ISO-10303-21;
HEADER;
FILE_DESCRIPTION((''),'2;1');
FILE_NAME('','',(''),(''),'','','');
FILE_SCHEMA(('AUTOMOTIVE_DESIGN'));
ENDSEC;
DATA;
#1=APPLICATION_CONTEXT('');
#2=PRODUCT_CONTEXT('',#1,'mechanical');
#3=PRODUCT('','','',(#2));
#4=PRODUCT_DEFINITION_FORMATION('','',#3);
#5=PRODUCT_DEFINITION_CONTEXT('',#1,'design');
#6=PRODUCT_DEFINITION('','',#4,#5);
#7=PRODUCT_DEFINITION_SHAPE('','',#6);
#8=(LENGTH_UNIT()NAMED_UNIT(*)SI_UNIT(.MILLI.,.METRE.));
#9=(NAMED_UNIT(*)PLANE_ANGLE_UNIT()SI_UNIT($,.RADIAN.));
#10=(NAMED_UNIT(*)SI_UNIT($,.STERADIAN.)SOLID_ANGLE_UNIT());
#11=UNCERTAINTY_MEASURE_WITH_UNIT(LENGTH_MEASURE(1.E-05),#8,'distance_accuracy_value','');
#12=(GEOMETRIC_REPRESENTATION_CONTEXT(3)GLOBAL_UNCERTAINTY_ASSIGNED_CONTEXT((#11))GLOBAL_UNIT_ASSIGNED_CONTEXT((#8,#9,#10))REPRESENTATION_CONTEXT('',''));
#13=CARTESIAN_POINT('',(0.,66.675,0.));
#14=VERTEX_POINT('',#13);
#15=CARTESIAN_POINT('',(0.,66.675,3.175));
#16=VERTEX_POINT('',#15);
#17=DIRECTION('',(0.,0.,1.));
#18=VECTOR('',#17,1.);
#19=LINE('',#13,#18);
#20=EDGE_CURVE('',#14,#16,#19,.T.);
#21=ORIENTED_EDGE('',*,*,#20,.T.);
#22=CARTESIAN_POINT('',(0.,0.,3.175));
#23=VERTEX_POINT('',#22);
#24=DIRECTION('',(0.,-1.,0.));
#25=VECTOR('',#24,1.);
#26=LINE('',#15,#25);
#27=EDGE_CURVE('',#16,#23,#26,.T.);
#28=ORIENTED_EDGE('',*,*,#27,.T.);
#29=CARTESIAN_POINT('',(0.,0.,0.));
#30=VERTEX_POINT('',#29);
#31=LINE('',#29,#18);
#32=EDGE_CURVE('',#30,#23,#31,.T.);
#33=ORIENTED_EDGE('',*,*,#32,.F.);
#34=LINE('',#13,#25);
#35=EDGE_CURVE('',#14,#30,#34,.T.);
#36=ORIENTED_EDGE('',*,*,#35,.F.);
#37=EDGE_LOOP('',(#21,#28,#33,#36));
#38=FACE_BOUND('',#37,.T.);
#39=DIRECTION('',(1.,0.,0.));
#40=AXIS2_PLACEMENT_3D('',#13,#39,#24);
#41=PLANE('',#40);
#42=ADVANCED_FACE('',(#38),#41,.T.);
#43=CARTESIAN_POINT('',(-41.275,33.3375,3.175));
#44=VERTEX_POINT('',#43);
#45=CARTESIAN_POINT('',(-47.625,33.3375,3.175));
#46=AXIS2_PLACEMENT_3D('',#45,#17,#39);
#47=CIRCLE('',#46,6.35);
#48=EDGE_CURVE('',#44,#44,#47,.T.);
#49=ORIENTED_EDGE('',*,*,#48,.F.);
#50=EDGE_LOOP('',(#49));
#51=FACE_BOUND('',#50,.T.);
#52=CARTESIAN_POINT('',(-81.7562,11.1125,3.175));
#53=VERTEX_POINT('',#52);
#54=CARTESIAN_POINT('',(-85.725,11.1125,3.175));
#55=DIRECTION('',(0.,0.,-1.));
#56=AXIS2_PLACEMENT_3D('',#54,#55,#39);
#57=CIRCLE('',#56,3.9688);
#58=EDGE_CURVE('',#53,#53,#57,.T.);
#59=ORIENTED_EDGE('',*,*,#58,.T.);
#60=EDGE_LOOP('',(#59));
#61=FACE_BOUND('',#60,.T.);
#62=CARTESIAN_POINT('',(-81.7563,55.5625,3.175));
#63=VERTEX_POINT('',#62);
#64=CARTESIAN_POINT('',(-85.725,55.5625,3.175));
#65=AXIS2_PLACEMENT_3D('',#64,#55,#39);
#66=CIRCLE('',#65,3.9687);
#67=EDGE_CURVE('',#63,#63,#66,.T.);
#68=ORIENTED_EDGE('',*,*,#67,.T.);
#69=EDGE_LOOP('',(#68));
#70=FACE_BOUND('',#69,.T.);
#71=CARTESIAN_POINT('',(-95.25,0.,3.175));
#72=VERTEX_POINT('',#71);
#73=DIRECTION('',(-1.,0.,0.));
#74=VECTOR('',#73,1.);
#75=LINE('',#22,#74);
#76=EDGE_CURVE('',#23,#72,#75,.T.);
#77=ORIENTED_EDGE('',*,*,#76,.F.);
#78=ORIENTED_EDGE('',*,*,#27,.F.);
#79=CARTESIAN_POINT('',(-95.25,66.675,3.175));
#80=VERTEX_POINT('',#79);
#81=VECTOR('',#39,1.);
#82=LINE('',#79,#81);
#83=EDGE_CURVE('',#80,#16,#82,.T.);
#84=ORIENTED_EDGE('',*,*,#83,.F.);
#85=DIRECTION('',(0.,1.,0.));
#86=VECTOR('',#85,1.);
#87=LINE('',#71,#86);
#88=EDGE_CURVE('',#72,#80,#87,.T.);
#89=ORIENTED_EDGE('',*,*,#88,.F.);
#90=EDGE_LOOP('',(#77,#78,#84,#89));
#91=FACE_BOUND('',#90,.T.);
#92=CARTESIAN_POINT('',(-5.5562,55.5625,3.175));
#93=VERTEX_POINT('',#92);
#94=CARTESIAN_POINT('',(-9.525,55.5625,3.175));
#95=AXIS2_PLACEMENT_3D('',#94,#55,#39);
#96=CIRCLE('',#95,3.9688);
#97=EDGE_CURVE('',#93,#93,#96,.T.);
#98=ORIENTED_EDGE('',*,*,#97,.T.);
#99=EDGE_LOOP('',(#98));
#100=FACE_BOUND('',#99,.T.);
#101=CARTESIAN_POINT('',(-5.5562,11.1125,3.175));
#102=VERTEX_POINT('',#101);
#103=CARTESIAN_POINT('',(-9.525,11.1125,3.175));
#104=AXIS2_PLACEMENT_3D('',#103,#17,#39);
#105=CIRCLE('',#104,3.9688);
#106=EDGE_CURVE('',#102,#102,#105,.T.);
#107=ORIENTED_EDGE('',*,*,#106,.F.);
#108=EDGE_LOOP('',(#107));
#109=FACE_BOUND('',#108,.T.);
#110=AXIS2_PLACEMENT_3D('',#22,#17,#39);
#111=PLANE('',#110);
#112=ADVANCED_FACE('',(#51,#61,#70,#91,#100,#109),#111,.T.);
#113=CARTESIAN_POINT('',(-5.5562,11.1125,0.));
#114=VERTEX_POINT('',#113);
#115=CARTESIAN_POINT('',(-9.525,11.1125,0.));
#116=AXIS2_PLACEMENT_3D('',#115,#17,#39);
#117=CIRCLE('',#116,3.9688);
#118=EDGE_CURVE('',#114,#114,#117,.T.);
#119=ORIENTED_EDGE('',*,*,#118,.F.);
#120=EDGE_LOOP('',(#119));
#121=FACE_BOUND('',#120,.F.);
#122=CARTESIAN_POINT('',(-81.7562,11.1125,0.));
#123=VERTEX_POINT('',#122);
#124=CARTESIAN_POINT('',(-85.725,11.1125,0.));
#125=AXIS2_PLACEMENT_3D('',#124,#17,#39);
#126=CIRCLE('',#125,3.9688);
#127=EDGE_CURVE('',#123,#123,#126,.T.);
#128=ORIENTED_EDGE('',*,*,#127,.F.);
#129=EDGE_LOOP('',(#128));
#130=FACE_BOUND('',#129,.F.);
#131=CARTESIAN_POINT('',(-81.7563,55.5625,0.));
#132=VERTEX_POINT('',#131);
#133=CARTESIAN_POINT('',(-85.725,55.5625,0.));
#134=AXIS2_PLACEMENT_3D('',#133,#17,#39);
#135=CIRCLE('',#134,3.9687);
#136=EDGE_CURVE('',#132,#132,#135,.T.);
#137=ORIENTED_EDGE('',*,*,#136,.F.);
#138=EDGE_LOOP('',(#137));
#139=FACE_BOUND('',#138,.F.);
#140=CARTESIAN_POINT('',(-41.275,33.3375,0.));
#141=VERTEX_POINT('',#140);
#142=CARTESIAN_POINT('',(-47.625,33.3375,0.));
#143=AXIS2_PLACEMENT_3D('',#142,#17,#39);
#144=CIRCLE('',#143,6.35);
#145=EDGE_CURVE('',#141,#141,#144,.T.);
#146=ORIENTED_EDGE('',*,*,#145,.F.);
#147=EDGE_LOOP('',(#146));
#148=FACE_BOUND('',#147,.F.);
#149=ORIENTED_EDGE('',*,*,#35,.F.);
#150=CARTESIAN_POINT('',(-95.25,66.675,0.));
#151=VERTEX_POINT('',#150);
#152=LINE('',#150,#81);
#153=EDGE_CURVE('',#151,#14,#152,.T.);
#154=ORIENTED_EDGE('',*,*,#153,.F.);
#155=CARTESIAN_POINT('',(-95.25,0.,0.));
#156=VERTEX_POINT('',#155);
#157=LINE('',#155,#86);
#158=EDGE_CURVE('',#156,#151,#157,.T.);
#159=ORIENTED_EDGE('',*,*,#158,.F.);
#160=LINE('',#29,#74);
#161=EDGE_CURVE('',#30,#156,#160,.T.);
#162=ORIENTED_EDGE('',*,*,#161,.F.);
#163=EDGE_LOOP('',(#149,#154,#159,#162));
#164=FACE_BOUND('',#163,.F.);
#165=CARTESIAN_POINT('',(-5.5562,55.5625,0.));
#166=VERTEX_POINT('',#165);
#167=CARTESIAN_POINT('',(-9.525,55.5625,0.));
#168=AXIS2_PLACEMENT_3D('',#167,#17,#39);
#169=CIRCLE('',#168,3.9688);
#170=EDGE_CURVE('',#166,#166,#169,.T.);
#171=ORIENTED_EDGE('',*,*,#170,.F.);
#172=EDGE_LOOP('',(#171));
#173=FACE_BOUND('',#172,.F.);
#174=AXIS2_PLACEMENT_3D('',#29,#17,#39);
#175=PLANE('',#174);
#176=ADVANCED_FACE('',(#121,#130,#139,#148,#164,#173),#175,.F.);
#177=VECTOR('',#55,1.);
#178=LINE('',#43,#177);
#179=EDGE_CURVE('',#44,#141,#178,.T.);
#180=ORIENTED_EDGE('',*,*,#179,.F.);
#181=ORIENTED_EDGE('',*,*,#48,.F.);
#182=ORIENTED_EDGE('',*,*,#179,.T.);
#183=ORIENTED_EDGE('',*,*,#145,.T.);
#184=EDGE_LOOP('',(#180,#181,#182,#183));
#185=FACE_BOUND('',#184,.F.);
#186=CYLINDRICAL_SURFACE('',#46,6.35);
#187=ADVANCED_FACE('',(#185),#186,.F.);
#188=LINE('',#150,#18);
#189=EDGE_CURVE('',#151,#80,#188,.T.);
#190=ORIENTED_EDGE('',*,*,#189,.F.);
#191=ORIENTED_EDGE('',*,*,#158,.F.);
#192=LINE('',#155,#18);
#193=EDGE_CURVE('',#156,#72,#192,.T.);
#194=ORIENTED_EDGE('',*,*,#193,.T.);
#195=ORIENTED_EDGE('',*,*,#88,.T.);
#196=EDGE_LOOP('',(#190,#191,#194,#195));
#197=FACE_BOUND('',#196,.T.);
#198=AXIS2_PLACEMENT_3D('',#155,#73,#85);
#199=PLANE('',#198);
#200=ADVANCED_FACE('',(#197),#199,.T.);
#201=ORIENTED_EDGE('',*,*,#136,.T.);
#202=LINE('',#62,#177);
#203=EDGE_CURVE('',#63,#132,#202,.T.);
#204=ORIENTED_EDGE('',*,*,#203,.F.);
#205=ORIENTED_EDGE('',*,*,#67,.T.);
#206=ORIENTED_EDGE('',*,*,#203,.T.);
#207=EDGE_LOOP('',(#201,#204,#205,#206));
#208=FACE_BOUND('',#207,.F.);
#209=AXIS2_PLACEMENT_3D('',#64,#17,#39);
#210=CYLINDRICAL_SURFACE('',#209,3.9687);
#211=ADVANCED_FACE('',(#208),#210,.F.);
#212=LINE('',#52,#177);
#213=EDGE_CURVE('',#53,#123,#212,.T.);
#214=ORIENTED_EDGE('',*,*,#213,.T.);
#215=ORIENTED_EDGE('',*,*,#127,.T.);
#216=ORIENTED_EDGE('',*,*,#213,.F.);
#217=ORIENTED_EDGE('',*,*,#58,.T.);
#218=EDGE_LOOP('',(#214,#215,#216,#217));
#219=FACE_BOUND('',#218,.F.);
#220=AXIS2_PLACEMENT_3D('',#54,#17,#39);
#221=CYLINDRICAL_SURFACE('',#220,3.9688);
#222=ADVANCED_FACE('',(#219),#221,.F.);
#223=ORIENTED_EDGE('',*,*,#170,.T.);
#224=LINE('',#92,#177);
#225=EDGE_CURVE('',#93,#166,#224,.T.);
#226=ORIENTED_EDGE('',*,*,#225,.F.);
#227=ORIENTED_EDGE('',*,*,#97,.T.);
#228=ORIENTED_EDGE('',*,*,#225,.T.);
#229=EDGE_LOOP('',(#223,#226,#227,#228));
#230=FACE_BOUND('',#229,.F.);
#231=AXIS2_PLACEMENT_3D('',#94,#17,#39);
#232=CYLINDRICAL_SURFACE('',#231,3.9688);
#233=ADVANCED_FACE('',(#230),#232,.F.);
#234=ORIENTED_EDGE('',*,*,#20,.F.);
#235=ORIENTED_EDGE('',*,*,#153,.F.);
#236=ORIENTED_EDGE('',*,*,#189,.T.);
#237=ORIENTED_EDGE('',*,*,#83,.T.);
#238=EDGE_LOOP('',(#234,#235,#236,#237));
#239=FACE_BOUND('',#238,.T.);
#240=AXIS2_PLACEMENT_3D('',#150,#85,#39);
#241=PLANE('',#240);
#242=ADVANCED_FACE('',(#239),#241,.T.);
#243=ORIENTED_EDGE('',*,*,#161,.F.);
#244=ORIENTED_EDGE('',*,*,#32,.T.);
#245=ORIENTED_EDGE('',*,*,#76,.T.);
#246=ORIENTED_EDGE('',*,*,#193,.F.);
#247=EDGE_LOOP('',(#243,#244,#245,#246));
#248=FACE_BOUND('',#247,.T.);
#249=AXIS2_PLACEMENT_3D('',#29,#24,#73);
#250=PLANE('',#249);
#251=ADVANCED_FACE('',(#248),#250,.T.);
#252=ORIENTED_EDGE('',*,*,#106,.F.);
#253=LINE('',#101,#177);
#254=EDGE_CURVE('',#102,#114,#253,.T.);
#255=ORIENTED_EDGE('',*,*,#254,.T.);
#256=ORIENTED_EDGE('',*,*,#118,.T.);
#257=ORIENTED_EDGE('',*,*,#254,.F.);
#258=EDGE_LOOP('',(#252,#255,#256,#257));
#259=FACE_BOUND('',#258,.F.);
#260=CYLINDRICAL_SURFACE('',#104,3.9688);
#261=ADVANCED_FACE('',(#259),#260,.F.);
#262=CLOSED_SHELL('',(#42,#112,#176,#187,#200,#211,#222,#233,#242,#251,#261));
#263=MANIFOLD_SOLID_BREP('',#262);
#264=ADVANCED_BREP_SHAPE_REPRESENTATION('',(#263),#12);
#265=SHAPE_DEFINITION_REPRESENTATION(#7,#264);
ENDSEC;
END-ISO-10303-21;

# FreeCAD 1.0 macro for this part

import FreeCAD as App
import Part
import Sketcher

V = App.Vector
Q = App.Units.Quantity


def add_polygon(sketch, points):
    """Adds a closed chain of lines whose ends are joined by coincident constraints."""
    first, n = sketch.GeometryCount, len(points)
    for a, b in zip(points, points[1:] + points[:1]):
        sketch.addGeometry(Part.LineSegment(App.Vector(*a, 0), App.Vector(*b, 0)), False)
    for i in range(n):
        sketch.addConstraint(Sketcher.Constraint("Coincident", first + i, 2, first + (i + 1) % n, 1))

doc = App.newDocument("Part")
body = doc.addObject("PartDesign::Body", "Body")

# Sketch on XY plane
sketch1 = body.newObject("Sketcher::SketchObject", "Sketch")
sketch1.AttachmentSupport = (doc.getObject("XY_Plane"), [""])
sketch1.MapMode = "FlatFace"
add_polygon(sketch1, [(-95, 0), (0, 0), (0, 67), (-95, 67)])  # lines 0-3
sketch1.addConstraint([
    Sketcher.Constraint("Horizontal", 0),
    Sketcher.Constraint("Vertical", 1),
    Sketcher.Constraint("Horizontal", 2),
    Sketcher.Constraint("Vertical", 3),
    Sketcher.Constraint("Coincident", 0, 2, -1, 1),
    Sketcher.Constraint("DistanceX", 0, 1, 0, 2, Q("3.75 in")),
    Sketcher.Constraint("DistanceY", 1, 1, 1, 2, Q("2.625 in")),
])
pad1 = body.newObject("PartDesign::Pad", "Pad")
pad1.Profile = sketch1
pad1.Length = Q("0.125 in")

# Sketch on XY plane
sketch2 = body.newObject("Sketcher::SketchObject", "Sketch001")
sketch2.AttachmentSupport = (doc.getObject("XY_Plane"), [""])
sketch2.MapMode = "FlatFace"
sketch2.AttachmentOffset = App.Placement(V(0, 0, 0.125 * 25.4), App.Rotation())
sketch2.addGeometry([
    Part.Circle(V(-9.5, 11.1, 0), V(0, 0, 1), 4),
    Part.Circle(V(-9.5, 55.6, 0), V(0, 0, 1), 4),
    Part.Circle(V(-85.7, 55.6, 0), V(0, 0, 1), 4),
    Part.Circle(V(-85.7, 11.1, 0), V(0, 0, 1), 4),
], False)
sketch2.addConstraint([
    Sketcher.Constraint("Equal", 0, 1),
    Sketcher.Constraint("Equal", 1, 2),
    Sketcher.Constraint("Equal", 2, 3),
    Sketcher.Constraint("Horizontal", 1, 3, 2, 3),
    Sketcher.Constraint("Horizontal", 0, 3, 3, 3),
    Sketcher.Constraint("Vertical", 0, 3, 1, 3),
    Sketcher.Constraint("Vertical", 2, 3, 3, 3),
    Sketcher.Constraint("Diameter", 0, Q("0.3125 in")),
    Sketcher.Constraint("DistanceX", 2, 3, 1, 3, Q("3 in")),
    Sketcher.Constraint("DistanceY", 0, 3, 1, 3, Q("1.75 in")),
    Sketcher.Constraint("DistanceX", 0, 3, -1, 1, Q("0.375 in")),
    Sketcher.Constraint("DistanceY", -1, 1, 0, 3, Q("0.4375 in")),
])
pocket1 = body.newObject("PartDesign::Pocket", "Pocket")
pocket1.Profile = sketch2
pocket1.Length = Q("0.125 in")

# Sketch on XY plane
sketch3 = body.newObject("Sketcher::SketchObject", "Sketch002")
sketch3.AttachmentSupport = (doc.getObject("XY_Plane"), [""])
sketch3.MapMode = "FlatFace"
sketch3.AttachmentOffset = App.Placement(V(0, 0, 0.125 * 25.4), App.Rotation())
sketch3.addGeometry(Part.Circle(V(-48, 33, 0), V(0, 0, 1), 6), False)
sketch3.addConstraint([
    Sketcher.Constraint("Diameter", 0, Q("0.5 in")),
    Sketcher.Constraint("DistanceX", 0, 3, -1, 1, Q("1.875 in")),
    Sketcher.Constraint("DistanceY", -1, 1, 0, 3, Q("1.3125 in")),
])
pocket2 = body.newObject("PartDesign::Pocket", "Pocket001")
pocket2.Profile = sketch3
pocket2.Length = Q("0.125 in")

doc.recompute()
